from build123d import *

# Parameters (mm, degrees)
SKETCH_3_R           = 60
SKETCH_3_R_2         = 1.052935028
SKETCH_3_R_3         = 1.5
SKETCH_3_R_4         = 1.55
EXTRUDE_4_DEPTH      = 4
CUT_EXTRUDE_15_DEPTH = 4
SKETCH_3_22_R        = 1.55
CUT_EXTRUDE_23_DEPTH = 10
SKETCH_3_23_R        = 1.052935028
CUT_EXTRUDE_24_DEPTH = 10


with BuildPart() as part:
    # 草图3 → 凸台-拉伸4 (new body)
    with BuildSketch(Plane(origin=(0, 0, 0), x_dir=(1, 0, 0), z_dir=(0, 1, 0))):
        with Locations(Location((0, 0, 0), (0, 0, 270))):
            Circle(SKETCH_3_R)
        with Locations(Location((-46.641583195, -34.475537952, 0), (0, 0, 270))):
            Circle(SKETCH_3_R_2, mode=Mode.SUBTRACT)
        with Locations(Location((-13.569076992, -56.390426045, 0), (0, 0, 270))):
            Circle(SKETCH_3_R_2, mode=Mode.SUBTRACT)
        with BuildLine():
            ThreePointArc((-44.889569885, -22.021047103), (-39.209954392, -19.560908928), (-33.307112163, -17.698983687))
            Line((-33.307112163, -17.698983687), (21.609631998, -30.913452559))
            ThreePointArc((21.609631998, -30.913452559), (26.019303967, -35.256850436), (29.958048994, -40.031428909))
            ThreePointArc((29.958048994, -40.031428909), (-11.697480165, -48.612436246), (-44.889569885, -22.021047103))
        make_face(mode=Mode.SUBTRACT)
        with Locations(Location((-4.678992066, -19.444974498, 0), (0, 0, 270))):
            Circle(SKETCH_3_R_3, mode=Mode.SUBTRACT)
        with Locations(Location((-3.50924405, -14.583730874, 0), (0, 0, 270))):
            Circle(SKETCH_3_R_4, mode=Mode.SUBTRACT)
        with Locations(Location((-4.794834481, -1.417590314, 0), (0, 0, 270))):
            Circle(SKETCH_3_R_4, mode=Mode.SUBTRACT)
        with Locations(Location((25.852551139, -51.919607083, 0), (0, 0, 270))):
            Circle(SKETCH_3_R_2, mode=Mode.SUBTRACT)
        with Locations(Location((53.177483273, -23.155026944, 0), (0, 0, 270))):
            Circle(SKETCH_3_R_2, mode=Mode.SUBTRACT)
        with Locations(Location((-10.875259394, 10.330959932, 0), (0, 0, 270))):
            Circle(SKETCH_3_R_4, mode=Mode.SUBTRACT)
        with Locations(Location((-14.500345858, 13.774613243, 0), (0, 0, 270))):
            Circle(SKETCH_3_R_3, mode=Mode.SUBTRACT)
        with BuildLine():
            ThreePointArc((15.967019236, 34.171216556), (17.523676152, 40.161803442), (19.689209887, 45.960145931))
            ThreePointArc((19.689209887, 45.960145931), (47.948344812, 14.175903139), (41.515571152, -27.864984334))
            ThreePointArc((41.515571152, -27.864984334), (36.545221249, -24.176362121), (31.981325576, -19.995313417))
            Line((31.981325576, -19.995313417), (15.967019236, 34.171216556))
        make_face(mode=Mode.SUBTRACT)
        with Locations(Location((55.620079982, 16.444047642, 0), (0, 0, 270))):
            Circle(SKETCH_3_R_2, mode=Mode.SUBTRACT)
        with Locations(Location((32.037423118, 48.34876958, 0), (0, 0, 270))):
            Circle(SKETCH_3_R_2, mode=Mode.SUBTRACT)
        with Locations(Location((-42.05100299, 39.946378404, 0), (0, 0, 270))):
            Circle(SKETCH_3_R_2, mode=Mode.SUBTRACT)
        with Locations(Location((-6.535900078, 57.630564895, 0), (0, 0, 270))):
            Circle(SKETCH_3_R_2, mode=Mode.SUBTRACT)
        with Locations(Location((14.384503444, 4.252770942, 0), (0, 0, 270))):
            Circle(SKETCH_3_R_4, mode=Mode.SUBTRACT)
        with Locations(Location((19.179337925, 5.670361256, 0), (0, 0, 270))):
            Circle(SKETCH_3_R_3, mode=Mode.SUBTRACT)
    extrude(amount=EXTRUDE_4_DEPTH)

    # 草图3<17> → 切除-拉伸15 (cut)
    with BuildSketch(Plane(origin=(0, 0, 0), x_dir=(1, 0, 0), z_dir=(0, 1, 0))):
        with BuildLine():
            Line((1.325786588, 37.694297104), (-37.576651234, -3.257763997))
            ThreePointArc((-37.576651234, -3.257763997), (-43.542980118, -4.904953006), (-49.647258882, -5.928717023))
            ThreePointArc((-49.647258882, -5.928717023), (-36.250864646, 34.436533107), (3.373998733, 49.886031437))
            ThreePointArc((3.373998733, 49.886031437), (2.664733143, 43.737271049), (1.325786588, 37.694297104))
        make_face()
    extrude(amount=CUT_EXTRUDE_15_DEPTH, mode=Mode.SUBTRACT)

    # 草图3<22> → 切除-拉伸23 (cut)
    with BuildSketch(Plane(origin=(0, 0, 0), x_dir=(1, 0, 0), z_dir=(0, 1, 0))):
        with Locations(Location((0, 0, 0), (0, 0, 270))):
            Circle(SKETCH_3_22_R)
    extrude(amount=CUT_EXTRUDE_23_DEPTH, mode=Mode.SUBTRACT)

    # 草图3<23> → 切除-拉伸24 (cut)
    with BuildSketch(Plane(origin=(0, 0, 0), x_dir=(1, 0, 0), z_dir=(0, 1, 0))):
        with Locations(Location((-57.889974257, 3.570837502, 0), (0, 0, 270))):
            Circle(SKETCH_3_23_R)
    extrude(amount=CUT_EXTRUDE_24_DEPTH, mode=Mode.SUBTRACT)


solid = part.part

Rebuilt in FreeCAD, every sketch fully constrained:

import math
import FreeCAD as App
import Part
import Sketcher
from FreeCAD import Vector
Q = App.Units.Quantity

doc = App.newDocument("Part")
body = doc.addObject("PartDesign::Body", "Body")

# Sketch on XZ plane
sketch1 = doc.addObject("Sketcher::SketchObject", "Sketch")
body.addObject(sketch1)
sketch1.AttachmentSupport = (doc.XZ_Plane, [""])
sketch1.MapMode = "FlatFace"
sketch1.addGeometry(Part.Circle(Vector(0, 0, 0), Vector(0, 0, 1), 60), False)
sketch1.addGeometry(Part.Circle(Vector(-42.1, -39.9, 0), Vector(0, 0, 1), 1.1), False)
sketch1.addGeometry(Part.Circle(Vector(-6.5, -57.6, 0), Vector(0, 0, 1), 1.1), False)
sketch1.addGeometry(Part.Circle(Vector(-14.5, -13.8, 0), Vector(0, 0, 1), 1.5), False)
sketch1.addGeometry(Part.Circle(Vector(-10.9, -10.3, 0), Vector(0, 0, 1), 1.6), False)
sketch1.addGeometry(Part.Circle(Vector(-46.6, 34.5, 0), Vector(0, 0, 1), 1.1), False)
sketch1.addGeometry(Part.Circle(Vector(-4.8, 1.4, 0), Vector(0, 0, 1), 1.6), False)
sketch1.addGeometry(Part.Circle(Vector(-3.5, 14.6, 0), Vector(0, 0, 1), 1.6), False)
sketch1.addGeometry(Part.Circle(Vector(-4.7, 19.4, 0), Vector(0, 0, 1), 1.5), False)
sketch1.addGeometry(Part.Circle(Vector(-13.6, 56.4, 0), Vector(0, 0, 1), 1.1), False)
sketch1.addGeometry(Part.ArcOfCircle(Part.Circle(Vector(0, 0, 0), Vector(0, 0, 1), 50), math.radians(53), math.radians(154)), False)
sketch1.addGeometry(Part.ArcOfCircle(Part.Circle(Vector(-18.2, 75.8, 0), Vector(0, 0, 1), 60), math.radians(-116.38), math.radians(-104.55)), False)
sketch1.addGeometry(Part.LineSegment(Vector(-33.3, 17.7, 0), Vector(21.6, 30.9, 0)), False)
sketch1.addGeometry(Part.ArcOfCircle(Part.Circle(Vector(-18.2, 75.8, 0), Vector(0, 0, 1), 60), math.radians(-48.39), math.radians(-36.56)), False)
sketch1.addGeometry(Part.Circle(Vector(14.4, -4.3, 0), Vector(0, 0, 1), 1.6), False)
sketch1.addGeometry(Part.Circle(Vector(19.2, -5.7, 0), Vector(0, 0, 1), 1.5), False)
sketch1.addGeometry(Part.Circle(Vector(32, -48.3, 0), Vector(0, 0, 1), 1.1), False)
sketch1.addGeometry(Part.LineSegment(Vector(32, 20, 0), Vector(16, -34.2, 0)), False)
sketch1.addGeometry(Part.ArcOfCircle(Part.Circle(Vector(74.7, -22.1, 0), Vector(0, 0, 1), 60), math.radians(-168.39), math.radians(-156.56)), False)
sketch1.addGeometry(Part.ArcOfCircle(Part.Circle(Vector(0, 0, 0), Vector(0, 0, 1), 50), math.radians(-67), math.radians(34)), False)
sketch1.addGeometry(Part.ArcOfCircle(Part.Circle(Vector(74.7, -22.1, 0), Vector(0, 0, 1), 60), math.radians(123.62), math.radians(135.45)), False)
sketch1.addGeometry(Part.Circle(Vector(55.6, -16.4, 0), Vector(0, 0, 1), 1.1), False)
sketch1.addGeometry(Part.Circle(Vector(25.9, 51.9, 0), Vector(0, 0, 1), 1.1), False)
sketch1.addGeometry(Part.Circle(Vector(53.2, 23.2, 0), Vector(0, 0, 1), 1.1), False)
sketch1.addConstraint(Sketcher.Constraint("Coincident", 10, 2, 11, 1))
sketch1.addConstraint(Sketcher.Constraint("Coincident", 11, 2, 12, 1))
sketch1.addConstraint(Sketcher.Constraint("Coincident", 12, 2, 13, 1))
sketch1.addConstraint(Sketcher.Constraint("Coincident", 13, 2, 10, 1))
sketch1.addConstraint(Sketcher.Constraint("Coincident", 17, 2, 18, 1))
sketch1.addConstraint(Sketcher.Constraint("Coincident", 18, 2, 19, 1))
sketch1.addConstraint(Sketcher.Constraint("Coincident", 19, 2, 20, 1))
sketch1.addConstraint(Sketcher.Constraint("Coincident", 20, 2, 17, 1))
sketch1.addConstraint(Sketcher.Constraint("Coincident", 0, 3, -1, 1))
sketch1.addConstraint(Sketcher.Constraint("Coincident", 10, 3, -1, 1))
sketch1.addConstraint(Sketcher.Constraint("Coincident", 19, 3, -1, 1))
sketch1.addConstraint(Sketcher.Constraint("Coincident", 13, 3, 11, 3))
sketch1.addConstraint(Sketcher.Constraint("Coincident", 20, 3, 18, 3))
sketch1.addConstraint(Sketcher.Constraint("Equal", 1, 2))
sketch1.addConstraint(Sketcher.Constraint("Equal", 2, 5))
sketch1.addConstraint(Sketcher.Constraint("Equal", 4, 6))
sketch1.addConstraint(Sketcher.Constraint("Equal", 6, 7))
sketch1.addConstraint(Sketcher.Constraint("Equal", 3, 8))
sketch1.addConstraint(Sketcher.Constraint("Equal", 5, 9))
sketch1.addConstraint(Sketcher.Constraint("Equal", 0, 11))
sketch1.addConstraint(Sketcher.Constraint("Equal", 11, 13))
sketch1.addConstraint(Sketcher.Constraint("Equal", 7, 14))
sketch1.addConstraint(Sketcher.Constraint("Equal", 8, 15))
sketch1.addConstraint(Sketcher.Constraint("Equal", 9, 16))
sketch1.addConstraint(Sketcher.Constraint("Equal", 13, 18))
sketch1.addConstraint(Sketcher.Constraint("Equal", 10, 19))
sketch1.addConstraint(Sketcher.Constraint("Equal", 18, 20))
sketch1.addConstraint(Sketcher.Constraint("Equal", 16, 21))
sketch1.addConstraint(Sketcher.Constraint("Equal", 21, 22))
sketch1.addConstraint(Sketcher.Constraint("Equal", 22, 23))
sketch1.addConstraint(Sketcher.Constraint("Equal", 12, 17))
sketch1.addConstraint(Sketcher.Constraint("Diameter", 0, Q("120 mm")))
sketch1.addConstraint(Sketcher.Constraint("Diameter", 3, Q("3 mm")))
sketch1.addConstraint(Sketcher.Constraint("Radius", 10, Q("50 mm")))
sketch1.addConstraint(Sketcher.Constraint("Diameter", 4, Q("3.1 mm")))
sketch1.addConstraint(Sketcher.Constraint("Diameter", 1, Q("2.10587 mm")))
sketch1.addConstraint(Sketcher.Constraint("DistanceY", 16, 3, 14, 3, Q("44.095999 mm")))
sketch1.addConstraint(Sketcher.Constraint("DistanceX", 2, 3, -1, 1, Q("6.5359 mm")))
sketch1.addConstraint(Sketcher.Constraint("DistanceX", 3, 3, 7, 3, Q("10.991102 mm")))
sketch1.addConstraint(Sketcher.Constraint("DistanceY", 14, 3, 7, 3, Q("18.836502 mm")))
sketch1.addConstraint(Sketcher.Constraint("DistanceY", 4, 3, 15, 3, Q("4.660599 mm")))
sketch1.addConstraint(Sketcher.Constraint("DistanceY", 23, 3, 13, 2, Q("16.876402 mm")))
sketch1.addConstraint(Sketcher.Constraint("DistanceY", 7, 3, 13, 2, Q("25.447698 mm")))
sketch1.addConstraint(Sketcher.Constraint("DistanceY", 1, 3, -1, 1, Q("39.946378 mm")))
sketch1.addConstraint(Sketcher.Constraint("DistanceX", 4, 3, -1, 1, Q("10.875259 mm")))
sketch1.addConstraint(Sketcher.Constraint("DistanceY", 4, 3, -1, 1, Q("10.33096 mm")))
sketch1.addConstraint(Sketcher.Constraint("DistanceY", -1, 1, 6, 3, Q("1.41759 mm")))
sketch1.addConstraint(Sketcher.Constraint("DistanceY", -1, 1, 7, 3, Q("14.583731 mm")))
sketch1.addConstraint(Sketcher.Constraint("DistanceX", -1, 1, 21, 3, Q("55.62008 mm")))
sketch1.addConstraint(Sketcher.Constraint("DistanceX", -1, 1, 22, 3, Q("25.852551 mm")))
sketch1.addConstraint(Sketcher.Constraint("DistanceX", 10, 2, -1, 1, Q("44.88957 mm")))
sketch1.addConstraint(Sketcher.Constraint("DistanceX", -1, 1, 12, 2, Q("21.609632 mm")))
sketch1.addConstraint(Sketcher.Constraint("DistanceX", -1, 1, 17, 2, Q("15.967019 mm")))
sketch1.addConstraint(Sketcher.Constraint("DistanceX", -1, 1, 18, 2, Q("19.68921 mm")))
sketch1.addConstraint(Sketcher.Constraint("DistanceX", -1, 1, 19, 2, Q("41.515571 mm")))
sketch1.addConstraint(Sketcher.Constraint("DistanceY", 2, 3, 3, 3, Q("43.855952 mm")))
sketch1.addConstraint(Sketcher.Constraint("DistanceY", 3, 3, 5, 3, Q("48.250151 mm")))
sketch1.addConstraint(Sketcher.Constraint("DistanceX", 5, 3, 1, 3, Q("4.59058 mm")))
sketch1.addConstraint(Sketcher.Constraint("DistanceX", 3, 3, 6, 3, Q("9.705511 mm")))
sketch1.addConstraint(Sketcher.Constraint("DistanceX", 5, 3, 6, 3, Q("41.846749 mm")))
sketch1.addConstraint(Sketcher.Constraint("DistanceX", 8, 3, 7, 3, Q("1.169748 mm")))
sketch1.addConstraint(Sketcher.Constraint("DistanceY", 8, 3, 9, 3, Q("36.945452 mm")))
sketch1.addConstraint(Sketcher.Constraint("DistanceY", 5, 3, 9, 3, Q("21.914888 mm")))
sketch1.addConstraint(Sketcher.Constraint("DistanceY", 9, 3, 11, 3, Q("19.38424 mm")))
sketch1.addConstraint(Sketcher.Constraint("DistanceX", 5, 3, 11, 3, Q("28.408129 mm")))
sketch1.addConstraint(Sketcher.Constraint("DistanceX", 14, 3, 16, 3, Q("17.65292 mm")))
sketch1.addConstraint(Sketcher.Constraint("DistanceX", 3, 3, 16, 3, Q("46.537769 mm")))
sketch1.addConstraint(Sketcher.Constraint("DistanceY", 20, 3, 21, 3, Q("5.65265 mm")))
sketch1.addConstraint(Sketcher.Constraint("DistanceX", 9, 3, 22, 3, Q("39.421628 mm")))
sketch1.addConstraint(Sketcher.Constraint("DistanceY", 22, 3, 9, 3, Q("4.470819 mm")))
sketch1.addConstraint(Sketcher.Constraint("DistanceX", 14, 3, 23, 3, Q("38.79298 mm")))
sketch1.addConstraint(Sketcher.Constraint("DistanceX", 5, 3, 11, 2, Q("13.334471 mm")))
sketch1.addConstraint(Sketcher.Constraint("DistanceX", 17, 2, 15, 3, Q("3.212319 mm")))
pad1 = doc.addObject("PartDesign::Pad", "Pad")
body.addObject(pad1)
pad1.Profile = sketch1
pad1.Length = 4
pad1.Reversed = True

# Sketch on XZ plane
sketch2 = doc.addObject("Sketcher::SketchObject", "Sketch001")
body.addObject(sketch2)
sketch2.AttachmentSupport = (doc.XZ_Plane, [""])
sketch2.MapMode = "FlatFace"
sketch2.addGeometry(Part.LineSegment(Vector(-38, 3, 0), Vector(1, -38, 0)), False)
sketch2.addGeometry(Part.ArcOfCircle(Part.Circle(Vector(-57, -54, 0), Vector(0, 0, 1), 60), math.radians(3.62), math.radians(15.45)), False)
sketch2.addGeometry(Part.ArcOfCircle(Part.Circle(Vector(0, 0, 0), Vector(0, 0, 1), 50), math.radians(173), math.radians(274)), False)
sketch2.addGeometry(Part.ArcOfCircle(Part.Circle(Vector(-57, -54, 0), Vector(0, 0, 1), 60), math.radians(71.61), math.radians(83.44)), False)
sketch2.addConstraint(Sketcher.Constraint("Coincident", 0, 2, 1, 2))
sketch2.addConstraint(Sketcher.Constraint("Coincident", 1, 1, 2, 2))
sketch2.addConstraint(Sketcher.Constraint("Coincident", 2, 1, 3, 2))
sketch2.addConstraint(Sketcher.Constraint("Coincident", 3, 1, 0, 1))
sketch2.addConstraint(Sketcher.Constraint("Coincident", 2, 3, -1, 1))
sketch2.addConstraint(Sketcher.Constraint("Coincident", 3, 3, 1, 3))
sketch2.addConstraint(Sketcher.Constraint("Equal", 1, 3))
sketch2.addConstraint(Sketcher.Constraint("Radius", 1, Q("60 mm")))
sketch2.addConstraint(Sketcher.Constraint("Radius", 2, Q("50 mm")))
sketch2.addConstraint(Sketcher.Constraint("DistanceX", -1, 1, 1, 1, Q("3.373999 mm")))
sketch2.addConstraint(Sketcher.Constraint("DistanceX", 3, 3, 2, 1, Q("6.858799 mm")))
sketch2.addConstraint(Sketcher.Constraint("DistanceX", 3, 1, -1, 1, Q("37.576651 mm")))
sketch2.addConstraint(Sketcher.Constraint("DistanceY", 3, 3, 0, 2, Q("15.983671 mm")))
pocket1 = doc.addObject("PartDesign::Pocket", "Pocket")
body.addObject(pocket1)
pocket1.Profile = sketch2
pocket1.Length = 4

# Sketch on XZ plane
sketch3 = doc.addObject("Sketcher::SketchObject", "Sketch002")
body.addObject(sketch3)
sketch3.AttachmentSupport = (doc.XZ_Plane, [""])
sketch3.MapMode = "FlatFace"
sketch3.addGeometry(Part.Circle(Vector(0, 0, 0), Vector(0, 0, 1), 1.6), False)
sketch3.addConstraint(Sketcher.Constraint("Coincident", 0, 3, -1, 1))
sketch3.addConstraint(Sketcher.Constraint("Diameter", 0, Q("3.1 mm")))
pocket2 = doc.addObject("PartDesign::Pocket", "Pocket001")
body.addObject(pocket2)
pocket2.Profile = sketch3
pocket2.Length = 10

# Sketch on XZ plane
sketch4 = doc.addObject("Sketcher::SketchObject", "Sketch003")
body.addObject(sketch4)
sketch4.AttachmentSupport = (doc.XZ_Plane, [""])
sketch4.MapMode = "FlatFace"
sketch4.addGeometry(Part.Circle(Vector(-57.9, -3.6, 0), Vector(0, 0, 1), 1.1), False)
sketch4.addConstraint(Sketcher.Constraint("Diameter", 0, Q("2.10587 mm")))
sketch4.addConstraint(Sketcher.Constraint("DistanceX", 0, 3, -1, 1, Q("57.889974 mm")))
sketch4.addConstraint(Sketcher.Constraint("DistanceY", 0, 3, -1, 1, Q("3.570838 mm")))
pocket3 = doc.addObject("PartDesign::Pocket", "Pocket002")
body.addObject(pocket3)
pocket3.Profile = sketch4
pocket3.Length = 10

doc.recompute()
